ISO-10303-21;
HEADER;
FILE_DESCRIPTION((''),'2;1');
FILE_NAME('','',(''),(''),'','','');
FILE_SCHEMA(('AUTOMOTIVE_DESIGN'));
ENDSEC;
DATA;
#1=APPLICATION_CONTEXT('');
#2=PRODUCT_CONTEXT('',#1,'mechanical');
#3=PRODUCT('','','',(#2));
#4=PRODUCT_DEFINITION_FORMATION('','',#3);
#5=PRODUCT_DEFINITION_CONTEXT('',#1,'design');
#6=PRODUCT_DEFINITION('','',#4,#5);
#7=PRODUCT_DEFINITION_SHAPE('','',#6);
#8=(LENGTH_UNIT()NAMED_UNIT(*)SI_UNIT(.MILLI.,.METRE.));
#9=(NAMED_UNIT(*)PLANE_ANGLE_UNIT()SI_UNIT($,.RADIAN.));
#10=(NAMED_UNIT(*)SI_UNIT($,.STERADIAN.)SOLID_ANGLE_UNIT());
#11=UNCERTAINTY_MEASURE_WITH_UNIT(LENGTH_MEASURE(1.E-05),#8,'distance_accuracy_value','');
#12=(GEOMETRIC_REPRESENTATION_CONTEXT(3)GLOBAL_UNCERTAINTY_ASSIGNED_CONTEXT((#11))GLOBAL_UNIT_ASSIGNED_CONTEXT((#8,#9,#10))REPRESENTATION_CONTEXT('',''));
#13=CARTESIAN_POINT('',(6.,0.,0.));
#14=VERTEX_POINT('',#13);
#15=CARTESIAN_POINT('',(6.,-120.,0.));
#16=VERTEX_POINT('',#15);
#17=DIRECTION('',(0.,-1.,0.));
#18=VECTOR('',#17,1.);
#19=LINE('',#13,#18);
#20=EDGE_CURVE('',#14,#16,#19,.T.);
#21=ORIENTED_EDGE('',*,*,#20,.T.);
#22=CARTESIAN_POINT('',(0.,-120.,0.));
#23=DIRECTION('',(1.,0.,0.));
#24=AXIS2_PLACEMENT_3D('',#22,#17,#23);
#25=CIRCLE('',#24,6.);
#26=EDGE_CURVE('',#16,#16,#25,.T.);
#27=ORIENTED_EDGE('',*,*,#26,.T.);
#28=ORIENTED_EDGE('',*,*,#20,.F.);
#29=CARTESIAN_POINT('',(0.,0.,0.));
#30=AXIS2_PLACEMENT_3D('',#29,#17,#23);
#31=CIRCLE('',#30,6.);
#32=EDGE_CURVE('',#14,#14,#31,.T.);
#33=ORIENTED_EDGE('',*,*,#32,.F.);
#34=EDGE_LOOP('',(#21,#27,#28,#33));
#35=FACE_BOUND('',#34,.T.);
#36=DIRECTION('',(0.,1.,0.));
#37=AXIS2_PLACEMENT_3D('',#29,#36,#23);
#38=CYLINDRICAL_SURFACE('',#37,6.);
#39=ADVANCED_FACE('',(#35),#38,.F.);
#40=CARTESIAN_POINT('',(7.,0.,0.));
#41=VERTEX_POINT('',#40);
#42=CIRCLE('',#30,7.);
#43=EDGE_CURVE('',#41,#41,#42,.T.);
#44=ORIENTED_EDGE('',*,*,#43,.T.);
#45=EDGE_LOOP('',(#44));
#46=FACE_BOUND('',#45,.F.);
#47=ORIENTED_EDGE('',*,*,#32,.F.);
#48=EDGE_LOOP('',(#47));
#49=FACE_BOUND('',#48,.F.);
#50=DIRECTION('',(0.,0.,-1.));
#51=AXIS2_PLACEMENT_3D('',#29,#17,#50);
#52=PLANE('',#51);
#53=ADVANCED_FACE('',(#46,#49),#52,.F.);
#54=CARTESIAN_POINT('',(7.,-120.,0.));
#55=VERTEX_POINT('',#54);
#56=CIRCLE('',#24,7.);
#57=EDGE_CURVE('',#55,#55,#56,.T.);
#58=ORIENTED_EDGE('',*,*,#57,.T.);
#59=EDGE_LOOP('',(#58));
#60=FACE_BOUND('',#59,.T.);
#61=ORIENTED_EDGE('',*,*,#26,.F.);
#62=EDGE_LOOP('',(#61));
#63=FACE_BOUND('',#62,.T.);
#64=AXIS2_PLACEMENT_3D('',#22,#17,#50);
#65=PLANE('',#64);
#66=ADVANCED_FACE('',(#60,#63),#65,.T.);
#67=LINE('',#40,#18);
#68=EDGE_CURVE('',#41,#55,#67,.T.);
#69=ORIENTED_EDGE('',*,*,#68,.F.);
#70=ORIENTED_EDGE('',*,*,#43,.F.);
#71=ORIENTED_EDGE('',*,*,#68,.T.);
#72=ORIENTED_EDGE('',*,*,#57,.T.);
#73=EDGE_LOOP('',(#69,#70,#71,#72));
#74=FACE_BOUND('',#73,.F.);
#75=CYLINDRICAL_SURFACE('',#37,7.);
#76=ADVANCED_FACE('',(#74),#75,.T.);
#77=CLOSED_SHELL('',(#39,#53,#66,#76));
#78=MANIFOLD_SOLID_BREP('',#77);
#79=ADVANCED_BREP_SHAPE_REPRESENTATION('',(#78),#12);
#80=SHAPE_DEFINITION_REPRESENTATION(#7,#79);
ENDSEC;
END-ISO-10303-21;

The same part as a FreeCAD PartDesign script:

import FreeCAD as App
import Part
import Sketcher

V = App.Vector

doc = App.newDocument("Part")
body = doc.addObject("PartDesign::Body", "Body")

sketch1 = doc.addObject("Sketcher::SketchObject", "Sketch")
body.addObject(sketch1)
sketch1.AttachmentSupport = (doc.XZ_Plane, [""])
sketch1.MapMode = "FlatFace"
sketch1.addGeometry([
    Part.Circle(V(0, 0, 0), V(0, 0, 1), 7),
    Part.Circle(V(0, 0, 0), V(0, 0, 1), 6),
], False)
sketch1.addConstraint([
    Sketcher.Constraint("Coincident", 0, 3, -1, 1),
    Sketcher.Constraint("Coincident", 1, 3, -1, 1),
    Sketcher.Constraint("Diameter", 0, 14.0),
    Sketcher.Constraint("Diameter", 1, 12.0),
])
pad1 = doc.addObject("PartDesign::Pad", "Pad")
body.addObject(pad1)
pad1.Profile = sketch1
pad1.Length = 120

doc.recompute()
